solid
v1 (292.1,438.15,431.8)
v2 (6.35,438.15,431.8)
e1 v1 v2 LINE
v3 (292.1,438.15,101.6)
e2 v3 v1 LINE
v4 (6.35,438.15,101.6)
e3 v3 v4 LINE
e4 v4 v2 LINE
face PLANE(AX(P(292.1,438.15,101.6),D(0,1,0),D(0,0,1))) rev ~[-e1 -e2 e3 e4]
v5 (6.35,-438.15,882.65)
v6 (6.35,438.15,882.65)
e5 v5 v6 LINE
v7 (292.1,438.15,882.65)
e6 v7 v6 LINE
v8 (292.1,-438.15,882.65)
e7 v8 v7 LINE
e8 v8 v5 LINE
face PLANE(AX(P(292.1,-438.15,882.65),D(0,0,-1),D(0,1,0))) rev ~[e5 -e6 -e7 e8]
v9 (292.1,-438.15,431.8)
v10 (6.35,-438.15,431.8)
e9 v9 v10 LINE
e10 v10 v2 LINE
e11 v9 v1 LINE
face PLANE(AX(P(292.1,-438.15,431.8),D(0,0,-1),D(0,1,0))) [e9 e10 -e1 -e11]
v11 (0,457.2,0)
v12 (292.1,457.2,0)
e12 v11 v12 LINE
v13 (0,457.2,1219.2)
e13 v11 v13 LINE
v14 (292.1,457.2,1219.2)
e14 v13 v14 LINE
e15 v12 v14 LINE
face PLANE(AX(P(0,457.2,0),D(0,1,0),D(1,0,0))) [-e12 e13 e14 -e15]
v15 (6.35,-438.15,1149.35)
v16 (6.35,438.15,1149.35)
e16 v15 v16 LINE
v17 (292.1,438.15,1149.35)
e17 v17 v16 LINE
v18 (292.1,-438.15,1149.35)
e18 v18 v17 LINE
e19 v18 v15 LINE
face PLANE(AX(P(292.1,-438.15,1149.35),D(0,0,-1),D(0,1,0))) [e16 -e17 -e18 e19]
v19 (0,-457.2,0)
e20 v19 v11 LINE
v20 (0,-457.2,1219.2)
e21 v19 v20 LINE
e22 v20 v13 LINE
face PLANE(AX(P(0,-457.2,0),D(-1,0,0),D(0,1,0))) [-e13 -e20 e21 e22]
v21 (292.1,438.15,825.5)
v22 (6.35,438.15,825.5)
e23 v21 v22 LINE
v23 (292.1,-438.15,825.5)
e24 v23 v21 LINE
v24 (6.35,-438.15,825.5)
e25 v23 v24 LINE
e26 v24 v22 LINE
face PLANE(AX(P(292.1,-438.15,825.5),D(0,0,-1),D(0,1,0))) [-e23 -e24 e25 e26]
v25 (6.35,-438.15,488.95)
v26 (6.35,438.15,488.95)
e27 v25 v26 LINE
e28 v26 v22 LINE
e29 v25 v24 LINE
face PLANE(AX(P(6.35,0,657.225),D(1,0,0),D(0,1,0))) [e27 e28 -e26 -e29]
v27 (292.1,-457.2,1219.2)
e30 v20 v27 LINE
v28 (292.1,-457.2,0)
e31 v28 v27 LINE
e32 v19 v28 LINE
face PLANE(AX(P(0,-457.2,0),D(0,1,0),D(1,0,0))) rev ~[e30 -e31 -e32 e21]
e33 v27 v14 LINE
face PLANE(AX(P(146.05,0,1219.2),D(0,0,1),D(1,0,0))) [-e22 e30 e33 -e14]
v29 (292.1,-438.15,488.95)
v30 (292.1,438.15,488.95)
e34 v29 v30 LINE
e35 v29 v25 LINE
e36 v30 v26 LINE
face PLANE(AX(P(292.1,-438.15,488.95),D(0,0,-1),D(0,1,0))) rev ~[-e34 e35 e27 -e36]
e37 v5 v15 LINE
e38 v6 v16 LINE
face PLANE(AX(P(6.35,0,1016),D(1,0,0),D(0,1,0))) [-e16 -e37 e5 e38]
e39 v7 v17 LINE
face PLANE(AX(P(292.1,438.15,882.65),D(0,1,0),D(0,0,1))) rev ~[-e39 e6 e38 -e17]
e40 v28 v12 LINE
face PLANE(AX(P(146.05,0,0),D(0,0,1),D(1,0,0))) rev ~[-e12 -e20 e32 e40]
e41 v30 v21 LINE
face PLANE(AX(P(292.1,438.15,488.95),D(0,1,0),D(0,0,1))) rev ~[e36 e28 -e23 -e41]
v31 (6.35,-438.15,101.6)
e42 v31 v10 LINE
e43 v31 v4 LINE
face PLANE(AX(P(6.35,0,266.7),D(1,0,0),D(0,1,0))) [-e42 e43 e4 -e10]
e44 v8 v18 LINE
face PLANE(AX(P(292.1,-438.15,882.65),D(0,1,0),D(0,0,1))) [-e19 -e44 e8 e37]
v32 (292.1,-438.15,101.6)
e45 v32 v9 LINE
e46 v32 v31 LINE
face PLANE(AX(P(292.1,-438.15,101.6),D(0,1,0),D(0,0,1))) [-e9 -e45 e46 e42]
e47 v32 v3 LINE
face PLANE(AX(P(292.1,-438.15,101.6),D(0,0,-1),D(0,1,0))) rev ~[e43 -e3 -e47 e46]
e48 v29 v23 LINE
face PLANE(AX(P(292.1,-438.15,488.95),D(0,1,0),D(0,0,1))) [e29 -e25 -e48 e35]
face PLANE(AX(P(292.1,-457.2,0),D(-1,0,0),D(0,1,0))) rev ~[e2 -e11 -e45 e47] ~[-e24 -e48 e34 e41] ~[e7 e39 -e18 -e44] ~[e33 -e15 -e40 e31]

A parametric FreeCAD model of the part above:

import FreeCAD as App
import Part
import Sketcher
Q = App.Units.Quantity

doc = App.newDocument("Part")
body = doc.addObject("PartDesign::Body", "Body")

# Sketch on XY plane
sketch1 = body.newObject("Sketcher::SketchObject", "Sketch")
sketch1.AttachmentSupport = (doc.getObject("XY_Plane"), [""])
sketch1.MapMode = "FlatFace"
sketch1.addGeometry(Part.LineSegment(App.Vector(0, 457.2, 0), App.Vector(0, -457.2, 0)), False)
sketch1.addGeometry(Part.LineSegment(App.Vector(0, -457.2, 0), App.Vector(292.1, -457.2, 0)), False)
sketch1.addGeometry(Part.LineSegment(App.Vector(292.1, -457.2, 0), App.Vector(292.1, 457.2, 0)), False)
sketch1.addGeometry(Part.LineSegment(App.Vector(292.1, 457.2, 0), App.Vector(0, 457.2, 0)), False)
sketch1.addConstraint(Sketcher.Constraint("Coincident", 0, 2, 1, 1))
sketch1.addConstraint(Sketcher.Constraint("Coincident", 1, 2, 2, 1))
sketch1.addConstraint(Sketcher.Constraint("Coincident", 2, 2, 3, 1))
sketch1.addConstraint(Sketcher.Constraint("Coincident", 3, 2, 0, 1))
sketch1.addConstraint(Sketcher.Constraint("Vertical", 0))
sketch1.addConstraint(Sketcher.Constraint("Horizontal", 1))
sketch1.addConstraint(Sketcher.Constraint("Vertical", 2))
sketch1.addConstraint(Sketcher.Constraint("Horizontal", 3))
sketch1.addConstraint(Sketcher.Constraint("Symmetric", 0, 2, 3, 2, -1, 1))
sketch1.addConstraint(Sketcher.Constraint("DistanceY", 0, 2, 0, 1, Q("36 in")))
sketch1.addConstraint(Sketcher.Constraint("DistanceX", 1, 1, 1, 2, Q("11.5 in")))
pad1 = body.newObject("PartDesign::Pad", "Pad")
pad1.Profile = sketch1
pad1.Length = Q("48 in")

# Sketch on YZ plane
sketch2 = body.newObject("Sketcher::SketchObject", "Sketch001")
sketch2.AttachmentSupport = (doc.getObject("YZ_Plane"), [""])
sketch2.MapMode = "FlatFace"
sketch2.AttachmentOffset = App.Placement(App.Vector(0, 0, 11.5 * 25.4), App.Rotation())
sketch2.addGeometry(Part.LineSegment(App.Vector(-438.15, 1149.35, 0), App.Vector(-438.15, 882.65, 0)), False)
sketch2.addGeometry(Part.LineSegment(App.Vector(-438.15, 882.65, 0), App.Vector(438.15, 882.65, 0)), False)
sketch2.addGeometry(Part.LineSegment(App.Vector(438.15, 882.65, 0), App.Vector(438.15, 1149.35, 0)), False)
sketch2.addGeometry(Part.LineSegment(App.Vector(438.15, 1149.35, 0), App.Vector(-438.15, 1149.35, 0)), False)
sketch2.addGeometry(Part.LineSegment(App.Vector(-438.15, 825.5, 0), App.Vector(-438.15, 488.95, 0)), False)
sketch2.addGeometry(Part.LineSegment(App.Vector(-438.15, 488.95, 0), App.Vector(438.15, 488.95, 0)), False)
sketch2.addGeometry(Part.LineSegment(App.Vector(438.15, 488.95, 0), App.Vector(438.15, 825.5, 0)), False)
sketch2.addGeometry(Part.LineSegment(App.Vector(438.15, 825.5, 0), App.Vector(-438.15, 825.5, 0)), False)
sketch2.addGeometry(Part.LineSegment(App.Vector(-438.15, 431.8, 0), App.Vector(-438.15, 101.6, 0)), False)
sketch2.addGeometry(Part.LineSegment(App.Vector(-438.15, 101.6, 0), App.Vector(438.15, 101.6, 0)), False)
sketch2.addGeometry(Part.LineSegment(App.Vector(438.15, 101.6, 0), App.Vector(438.15, 431.8, 0)), False)
sketch2.addGeometry(Part.LineSegment(App.Vector(438.15, 431.8, 0), App.Vector(-438.15, 431.8, 0)), False)
sketch2.addConstraint(Sketcher.Constraint("Coincident", 0, 2, 1, 1))
sketch2.addConstraint(Sketcher.Constraint("Coincident", 1, 2, 2, 1))
sketch2.addConstraint(Sketcher.Constraint("Coincident", 2, 2, 3, 1))
sketch2.addConstraint(Sketcher.Constraint("Coincident", 3, 2, 0, 1))
sketch2.addConstraint(Sketcher.Constraint("Coincident", 4, 2, 5, 1))
sketch2.addConstraint(Sketcher.Constraint("Coincident", 5, 2, 6, 1))
sketch2.addConstraint(Sketcher.Constraint("Coincident", 6, 2, 7, 1))
sketch2.addConstraint(Sketcher.Constraint("Coincident", 7, 2, 4, 1))
sketch2.addConstraint(Sketcher.Constraint("Coincident", 8, 2, 9, 1))
sketch2.addConstraint(Sketcher.Constraint("Coincident", 9, 2, 10, 1))
sketch2.addConstraint(Sketcher.Constraint("Coincident", 10, 2, 11, 1))
sketch2.addConstraint(Sketcher.Constraint("Coincident", 11, 2, 8, 1))
sketch2.addConstraint(Sketcher.Constraint("Vertical", 0))
sketch2.addConstraint(Sketcher.Constraint("Horizontal", 1))
sketch2.addConstraint(Sketcher.Constraint("Vertical", 2))
sketch2.addConstraint(Sketcher.Constraint("Horizontal", 3))
sketch2.addConstraint(Sketcher.Constraint("Vertical", 4))
sketch2.addConstraint(Sketcher.Constraint("Horizontal", 5))
sketch2.addConstraint(Sketcher.Constraint("Vertical", 6))
sketch2.addConstraint(Sketcher.Constraint("Horizontal", 7))
sketch2.addConstraint(Sketcher.Constraint("Vertical", 8))
sketch2.addConstraint(Sketcher.Constraint("Horizontal", 9))
sketch2.addConstraint(Sketcher.Constraint("Vertical", 10))
sketch2.addConstraint(Sketcher.Constraint("Horizontal", 11))
sketch2.addConstraint(Sketcher.Constraint("Vertical", 3, 2, 4, 2))
sketch2.addConstraint(Sketcher.Constraint("Vertical", 2, 2, 5, 2))
sketch2.addConstraint(Sketcher.Constraint("Vertical", 7, 2, 8, 2))
sketch2.addConstraint(Sketcher.Constraint("Vertical", 6, 2, 9, 2))
sketch2.addConstraint(Sketcher.Constraint("DistanceY", 8, 2, 8, 1, Q("13 in")))
sketch2.addConstraint(Sketcher.Constraint("DistanceX", 1, 1, 1, 2, Q("34.5 in")))
sketch2.addConstraint(Sketcher.Constraint("DistanceY", 0, 2, 0, 1, Q("10.5 in")))
sketch2.addConstraint(Sketcher.Constraint("DistanceY", -1, 1, 8, 2, Q("4 in")))
sketch2.addConstraint(Sketcher.Constraint("DistanceY", 4, 2, 3, 2, Q("26 in")))
sketch2.addConstraint(Sketcher.Constraint("DistanceY", 4, 2, 4, 1, Q("13.25 in")))
sketch2.addConstraint(Sketcher.Constraint("DistanceY", -1, 1, 6, 2, Q("32.5 in")))
sketch2.addConstraint(Sketcher.Constraint("DistanceX", 0, 2, -1, 1, Q("17.25 in")))
pocket1 = body.newObject("PartDesign::Pocket", "Pocket")
pocket1.Profile = sketch2
pocket1.Length = Q("11.25 in")

doc.recompute()
